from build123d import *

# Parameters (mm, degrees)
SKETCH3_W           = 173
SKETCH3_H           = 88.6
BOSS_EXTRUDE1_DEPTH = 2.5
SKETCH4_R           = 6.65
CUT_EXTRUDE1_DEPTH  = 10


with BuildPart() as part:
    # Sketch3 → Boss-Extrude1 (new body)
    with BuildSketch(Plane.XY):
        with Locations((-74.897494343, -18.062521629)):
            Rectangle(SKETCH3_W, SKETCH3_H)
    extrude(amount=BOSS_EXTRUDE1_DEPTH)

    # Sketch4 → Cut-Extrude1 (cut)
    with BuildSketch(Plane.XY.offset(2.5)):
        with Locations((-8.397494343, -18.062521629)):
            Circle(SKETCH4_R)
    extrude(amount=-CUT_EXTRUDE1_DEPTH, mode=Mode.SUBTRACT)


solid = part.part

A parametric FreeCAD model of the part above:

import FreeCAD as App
import Part
import Sketcher

V = App.Vector

doc = App.newDocument("Part")
params = doc.addObject("Spreadsheet::Sheet", "Params")
for row, (alias, value) in enumerate([
    ("sketch1_width", "173 mm"),
    ("sketch1_height", "88.6 mm"),
    ("pad1_length", "2.5 mm"),
    ("sketch2_diameter", "13.3 mm"),
    ("pocket1_length", "10 mm"),
], start=1):
    params.set(f"A{row}", alias)
    params.set(f"B{row}", "=" + value)
    params.setAlias(f"B{row}", alias)

body = doc.addObject("PartDesign::Body", "Body")

sketch1 = body.newObject("Sketcher::SketchObject", "Sketch")
sketch1.AttachmentSupport = (doc.getObject("XY_Plane"), [""])
sketch1.MapMode = "FlatFace"
sketch1.addGeometry([
    Part.LineSegment(V(-161.397494, 26.237478, 0), V(-161.397494, -62.362522, 0)),
    Part.LineSegment(V(-161.397494, -62.362522, 0), V(11.602506, -62.362522, 0)),
    Part.LineSegment(V(11.602506, -62.362522, 0), V(11.602506, 26.237478, 0)),
    Part.LineSegment(V(11.602506, 26.237478, 0), V(-161.397494, 26.237478, 0)),
], False)
sketch1.addConstraint([
    Sketcher.Constraint("Coincident", 0, 2, 1, 1),
    Sketcher.Constraint("Coincident", 1, 2, 2, 1),
    Sketcher.Constraint("Coincident", 2, 2, 3, 1),
    Sketcher.Constraint("Coincident", 3, 2, 0, 1),
    Sketcher.Constraint("Vertical", 0),
    Sketcher.Constraint("Horizontal", 1),
    Sketcher.Constraint("Vertical", 2),
    Sketcher.Constraint("Horizontal", 3),
    Sketcher.Constraint("DistanceX", 1, 1, 1, 2, 173.0),
    Sketcher.Constraint("DistanceY", 0, 2, 0, 1, 88.6),
    Sketcher.Constraint("DistanceY", 0, 2, -1, 1, 62.362522),
    Sketcher.Constraint("DistanceX", 0, 2, -1, 1, 161.397494),
])
sketch1.setExpression("Constraints[8]", "Params.sketch1_width")
sketch1.setExpression("Constraints[9]", "Params.sketch1_height")
pad1 = body.newObject("PartDesign::Pad", "Pad")
pad1.Profile = sketch1
pad1.setExpression("Length", "Params.pad1_length")

sketch2 = body.newObject("Sketcher::SketchObject", "Sketch001")
sketch2.AttachmentSupport = (doc.getObject("XY_Plane"), [""])
sketch2.MapMode = "FlatFace"
sketch2.AttachmentOffset = App.Placement(V(0, 0, 2.5), App.Rotation())
sketch2.addGeometry(Part.Circle(V(-8.397494, -18.062522, 0), V(0, 0, 1), 6.65), False)
sketch2.addConstraint([
    Sketcher.Constraint("Diameter", 0, 13.3),
    Sketcher.Constraint("DistanceY", 0, 3, -1, 1, 18.062522),
    Sketcher.Constraint("DistanceX", 0, 3, -1, 1, 8.397494),
])
sketch2.setExpression("Constraints[0]", "Params.sketch2_diameter")
pocket1 = body.newObject("PartDesign::Pocket", "Pocket")
pocket1.Profile = sketch2
pocket1.setExpression("Length", "Params.pocket1_length")

doc.recompute()
